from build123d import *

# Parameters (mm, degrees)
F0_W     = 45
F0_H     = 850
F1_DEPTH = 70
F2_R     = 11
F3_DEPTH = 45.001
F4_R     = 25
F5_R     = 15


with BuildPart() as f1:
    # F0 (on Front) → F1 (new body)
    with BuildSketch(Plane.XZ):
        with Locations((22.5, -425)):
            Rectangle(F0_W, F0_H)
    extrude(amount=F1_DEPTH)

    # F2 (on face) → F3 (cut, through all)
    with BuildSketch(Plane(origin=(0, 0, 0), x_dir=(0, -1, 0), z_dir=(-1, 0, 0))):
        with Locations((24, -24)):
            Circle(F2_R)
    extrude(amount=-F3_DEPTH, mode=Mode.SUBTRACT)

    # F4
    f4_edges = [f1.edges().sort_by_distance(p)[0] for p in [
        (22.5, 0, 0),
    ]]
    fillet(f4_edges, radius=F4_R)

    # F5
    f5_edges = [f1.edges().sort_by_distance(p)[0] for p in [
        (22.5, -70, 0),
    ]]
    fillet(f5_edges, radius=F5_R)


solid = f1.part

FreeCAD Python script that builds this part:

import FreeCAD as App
import Part
import Sketcher
from FreeCAD import Vector
Q = App.Units.Quantity


def edges_at(feature, points):
    """Names of the edges that pass closest to the given points."""
    edges = feature.Shape.Edges
    near = lambda p: min(range(len(edges)), key=lambda i: edges[i].distToShape(Part.Vertex(*p))[0])
    return sorted({f"Edge{near(p) + 1}" for p in points})


def add_polygon(sketch, points):
    """Adds a closed chain of lines whose ends are joined by coincident constraints."""
    first, n = sketch.GeometryCount, len(points)
    for a, b in zip(points, points[1:] + points[:1]):
        sketch.addGeometry(Part.LineSegment(App.Vector(*a, 0), App.Vector(*b, 0)), False)
    for i in range(n):
        sketch.addConstraint(Sketcher.Constraint("Coincident", first + i, 2, first + (i + 1) % n, 1))

doc = App.newDocument("Part")
body = doc.addObject("PartDesign::Body", "Body")

# Sketch on XZ plane
sketch1 = body.newObject("Sketcher::SketchObject", "Sketch")
sketch1.AttachmentSupport = (doc.getObject("XZ_Plane"), [""])
sketch1.MapMode = "FlatFace"
add_polygon(sketch1, [(0, 0), (0, -850), (45, -850), (45, 0)])  # lines 0-3
sketch1.addConstraint([
    Sketcher.Constraint("Vertical", 0),
    Sketcher.Constraint("Horizontal", 1),
    Sketcher.Constraint("Vertical", 2),
    Sketcher.Constraint("Horizontal", 3),
    Sketcher.Constraint("Coincident", 3, 2, -1, 1),
    Sketcher.Constraint("DistanceX", 1, 1, 1, 2, Q("45 mm")),
    Sketcher.Constraint("DistanceY", 0, 2, 0, 1, Q("850 mm")),
])
pad1 = body.newObject("PartDesign::Pad", "Pad")
pad1.Profile = sketch1
pad1.Length = 70

# Sketch on YZ plane
sketch2 = body.newObject("Sketcher::SketchObject", "Sketch001")
sketch2.AttachmentSupport = (doc.getObject("YZ_Plane"), [""])
sketch2.MapMode = "FlatFace"
sketch2.addGeometry(Part.Circle(Vector(-24, -24, 0), Vector(0, 0, 1), 11), False)
sketch2.addConstraint([
    Sketcher.Constraint("Diameter", 0, Q("22 mm")),
    Sketcher.Constraint("DistanceX", 0, 3, -1, 1, Q("24 mm")),
    Sketcher.Constraint("DistanceY", 0, 3, -1, 1, Q("24 mm")),
])
pocket1 = body.newObject("PartDesign::Pocket", "Pocket")
pocket1.Profile = sketch2
pocket1.Type = "ThroughAll"
pocket1.Reversed = True
doc.recompute()

fillet = body.newObject("PartDesign::Fillet", "Fillet")
fillet.Base = (pocket1, edges_at(pocket1, [(22.5, 0, 0)]))
fillet.Radius = 25
doc.recompute()

fillet2 = body.newObject("PartDesign::Fillet", "Fillet001")
fillet2.Base = (fillet, edges_at(fillet, [(22.5, -70, 0)]))
fillet2.Radius = 15

doc.recompute()
